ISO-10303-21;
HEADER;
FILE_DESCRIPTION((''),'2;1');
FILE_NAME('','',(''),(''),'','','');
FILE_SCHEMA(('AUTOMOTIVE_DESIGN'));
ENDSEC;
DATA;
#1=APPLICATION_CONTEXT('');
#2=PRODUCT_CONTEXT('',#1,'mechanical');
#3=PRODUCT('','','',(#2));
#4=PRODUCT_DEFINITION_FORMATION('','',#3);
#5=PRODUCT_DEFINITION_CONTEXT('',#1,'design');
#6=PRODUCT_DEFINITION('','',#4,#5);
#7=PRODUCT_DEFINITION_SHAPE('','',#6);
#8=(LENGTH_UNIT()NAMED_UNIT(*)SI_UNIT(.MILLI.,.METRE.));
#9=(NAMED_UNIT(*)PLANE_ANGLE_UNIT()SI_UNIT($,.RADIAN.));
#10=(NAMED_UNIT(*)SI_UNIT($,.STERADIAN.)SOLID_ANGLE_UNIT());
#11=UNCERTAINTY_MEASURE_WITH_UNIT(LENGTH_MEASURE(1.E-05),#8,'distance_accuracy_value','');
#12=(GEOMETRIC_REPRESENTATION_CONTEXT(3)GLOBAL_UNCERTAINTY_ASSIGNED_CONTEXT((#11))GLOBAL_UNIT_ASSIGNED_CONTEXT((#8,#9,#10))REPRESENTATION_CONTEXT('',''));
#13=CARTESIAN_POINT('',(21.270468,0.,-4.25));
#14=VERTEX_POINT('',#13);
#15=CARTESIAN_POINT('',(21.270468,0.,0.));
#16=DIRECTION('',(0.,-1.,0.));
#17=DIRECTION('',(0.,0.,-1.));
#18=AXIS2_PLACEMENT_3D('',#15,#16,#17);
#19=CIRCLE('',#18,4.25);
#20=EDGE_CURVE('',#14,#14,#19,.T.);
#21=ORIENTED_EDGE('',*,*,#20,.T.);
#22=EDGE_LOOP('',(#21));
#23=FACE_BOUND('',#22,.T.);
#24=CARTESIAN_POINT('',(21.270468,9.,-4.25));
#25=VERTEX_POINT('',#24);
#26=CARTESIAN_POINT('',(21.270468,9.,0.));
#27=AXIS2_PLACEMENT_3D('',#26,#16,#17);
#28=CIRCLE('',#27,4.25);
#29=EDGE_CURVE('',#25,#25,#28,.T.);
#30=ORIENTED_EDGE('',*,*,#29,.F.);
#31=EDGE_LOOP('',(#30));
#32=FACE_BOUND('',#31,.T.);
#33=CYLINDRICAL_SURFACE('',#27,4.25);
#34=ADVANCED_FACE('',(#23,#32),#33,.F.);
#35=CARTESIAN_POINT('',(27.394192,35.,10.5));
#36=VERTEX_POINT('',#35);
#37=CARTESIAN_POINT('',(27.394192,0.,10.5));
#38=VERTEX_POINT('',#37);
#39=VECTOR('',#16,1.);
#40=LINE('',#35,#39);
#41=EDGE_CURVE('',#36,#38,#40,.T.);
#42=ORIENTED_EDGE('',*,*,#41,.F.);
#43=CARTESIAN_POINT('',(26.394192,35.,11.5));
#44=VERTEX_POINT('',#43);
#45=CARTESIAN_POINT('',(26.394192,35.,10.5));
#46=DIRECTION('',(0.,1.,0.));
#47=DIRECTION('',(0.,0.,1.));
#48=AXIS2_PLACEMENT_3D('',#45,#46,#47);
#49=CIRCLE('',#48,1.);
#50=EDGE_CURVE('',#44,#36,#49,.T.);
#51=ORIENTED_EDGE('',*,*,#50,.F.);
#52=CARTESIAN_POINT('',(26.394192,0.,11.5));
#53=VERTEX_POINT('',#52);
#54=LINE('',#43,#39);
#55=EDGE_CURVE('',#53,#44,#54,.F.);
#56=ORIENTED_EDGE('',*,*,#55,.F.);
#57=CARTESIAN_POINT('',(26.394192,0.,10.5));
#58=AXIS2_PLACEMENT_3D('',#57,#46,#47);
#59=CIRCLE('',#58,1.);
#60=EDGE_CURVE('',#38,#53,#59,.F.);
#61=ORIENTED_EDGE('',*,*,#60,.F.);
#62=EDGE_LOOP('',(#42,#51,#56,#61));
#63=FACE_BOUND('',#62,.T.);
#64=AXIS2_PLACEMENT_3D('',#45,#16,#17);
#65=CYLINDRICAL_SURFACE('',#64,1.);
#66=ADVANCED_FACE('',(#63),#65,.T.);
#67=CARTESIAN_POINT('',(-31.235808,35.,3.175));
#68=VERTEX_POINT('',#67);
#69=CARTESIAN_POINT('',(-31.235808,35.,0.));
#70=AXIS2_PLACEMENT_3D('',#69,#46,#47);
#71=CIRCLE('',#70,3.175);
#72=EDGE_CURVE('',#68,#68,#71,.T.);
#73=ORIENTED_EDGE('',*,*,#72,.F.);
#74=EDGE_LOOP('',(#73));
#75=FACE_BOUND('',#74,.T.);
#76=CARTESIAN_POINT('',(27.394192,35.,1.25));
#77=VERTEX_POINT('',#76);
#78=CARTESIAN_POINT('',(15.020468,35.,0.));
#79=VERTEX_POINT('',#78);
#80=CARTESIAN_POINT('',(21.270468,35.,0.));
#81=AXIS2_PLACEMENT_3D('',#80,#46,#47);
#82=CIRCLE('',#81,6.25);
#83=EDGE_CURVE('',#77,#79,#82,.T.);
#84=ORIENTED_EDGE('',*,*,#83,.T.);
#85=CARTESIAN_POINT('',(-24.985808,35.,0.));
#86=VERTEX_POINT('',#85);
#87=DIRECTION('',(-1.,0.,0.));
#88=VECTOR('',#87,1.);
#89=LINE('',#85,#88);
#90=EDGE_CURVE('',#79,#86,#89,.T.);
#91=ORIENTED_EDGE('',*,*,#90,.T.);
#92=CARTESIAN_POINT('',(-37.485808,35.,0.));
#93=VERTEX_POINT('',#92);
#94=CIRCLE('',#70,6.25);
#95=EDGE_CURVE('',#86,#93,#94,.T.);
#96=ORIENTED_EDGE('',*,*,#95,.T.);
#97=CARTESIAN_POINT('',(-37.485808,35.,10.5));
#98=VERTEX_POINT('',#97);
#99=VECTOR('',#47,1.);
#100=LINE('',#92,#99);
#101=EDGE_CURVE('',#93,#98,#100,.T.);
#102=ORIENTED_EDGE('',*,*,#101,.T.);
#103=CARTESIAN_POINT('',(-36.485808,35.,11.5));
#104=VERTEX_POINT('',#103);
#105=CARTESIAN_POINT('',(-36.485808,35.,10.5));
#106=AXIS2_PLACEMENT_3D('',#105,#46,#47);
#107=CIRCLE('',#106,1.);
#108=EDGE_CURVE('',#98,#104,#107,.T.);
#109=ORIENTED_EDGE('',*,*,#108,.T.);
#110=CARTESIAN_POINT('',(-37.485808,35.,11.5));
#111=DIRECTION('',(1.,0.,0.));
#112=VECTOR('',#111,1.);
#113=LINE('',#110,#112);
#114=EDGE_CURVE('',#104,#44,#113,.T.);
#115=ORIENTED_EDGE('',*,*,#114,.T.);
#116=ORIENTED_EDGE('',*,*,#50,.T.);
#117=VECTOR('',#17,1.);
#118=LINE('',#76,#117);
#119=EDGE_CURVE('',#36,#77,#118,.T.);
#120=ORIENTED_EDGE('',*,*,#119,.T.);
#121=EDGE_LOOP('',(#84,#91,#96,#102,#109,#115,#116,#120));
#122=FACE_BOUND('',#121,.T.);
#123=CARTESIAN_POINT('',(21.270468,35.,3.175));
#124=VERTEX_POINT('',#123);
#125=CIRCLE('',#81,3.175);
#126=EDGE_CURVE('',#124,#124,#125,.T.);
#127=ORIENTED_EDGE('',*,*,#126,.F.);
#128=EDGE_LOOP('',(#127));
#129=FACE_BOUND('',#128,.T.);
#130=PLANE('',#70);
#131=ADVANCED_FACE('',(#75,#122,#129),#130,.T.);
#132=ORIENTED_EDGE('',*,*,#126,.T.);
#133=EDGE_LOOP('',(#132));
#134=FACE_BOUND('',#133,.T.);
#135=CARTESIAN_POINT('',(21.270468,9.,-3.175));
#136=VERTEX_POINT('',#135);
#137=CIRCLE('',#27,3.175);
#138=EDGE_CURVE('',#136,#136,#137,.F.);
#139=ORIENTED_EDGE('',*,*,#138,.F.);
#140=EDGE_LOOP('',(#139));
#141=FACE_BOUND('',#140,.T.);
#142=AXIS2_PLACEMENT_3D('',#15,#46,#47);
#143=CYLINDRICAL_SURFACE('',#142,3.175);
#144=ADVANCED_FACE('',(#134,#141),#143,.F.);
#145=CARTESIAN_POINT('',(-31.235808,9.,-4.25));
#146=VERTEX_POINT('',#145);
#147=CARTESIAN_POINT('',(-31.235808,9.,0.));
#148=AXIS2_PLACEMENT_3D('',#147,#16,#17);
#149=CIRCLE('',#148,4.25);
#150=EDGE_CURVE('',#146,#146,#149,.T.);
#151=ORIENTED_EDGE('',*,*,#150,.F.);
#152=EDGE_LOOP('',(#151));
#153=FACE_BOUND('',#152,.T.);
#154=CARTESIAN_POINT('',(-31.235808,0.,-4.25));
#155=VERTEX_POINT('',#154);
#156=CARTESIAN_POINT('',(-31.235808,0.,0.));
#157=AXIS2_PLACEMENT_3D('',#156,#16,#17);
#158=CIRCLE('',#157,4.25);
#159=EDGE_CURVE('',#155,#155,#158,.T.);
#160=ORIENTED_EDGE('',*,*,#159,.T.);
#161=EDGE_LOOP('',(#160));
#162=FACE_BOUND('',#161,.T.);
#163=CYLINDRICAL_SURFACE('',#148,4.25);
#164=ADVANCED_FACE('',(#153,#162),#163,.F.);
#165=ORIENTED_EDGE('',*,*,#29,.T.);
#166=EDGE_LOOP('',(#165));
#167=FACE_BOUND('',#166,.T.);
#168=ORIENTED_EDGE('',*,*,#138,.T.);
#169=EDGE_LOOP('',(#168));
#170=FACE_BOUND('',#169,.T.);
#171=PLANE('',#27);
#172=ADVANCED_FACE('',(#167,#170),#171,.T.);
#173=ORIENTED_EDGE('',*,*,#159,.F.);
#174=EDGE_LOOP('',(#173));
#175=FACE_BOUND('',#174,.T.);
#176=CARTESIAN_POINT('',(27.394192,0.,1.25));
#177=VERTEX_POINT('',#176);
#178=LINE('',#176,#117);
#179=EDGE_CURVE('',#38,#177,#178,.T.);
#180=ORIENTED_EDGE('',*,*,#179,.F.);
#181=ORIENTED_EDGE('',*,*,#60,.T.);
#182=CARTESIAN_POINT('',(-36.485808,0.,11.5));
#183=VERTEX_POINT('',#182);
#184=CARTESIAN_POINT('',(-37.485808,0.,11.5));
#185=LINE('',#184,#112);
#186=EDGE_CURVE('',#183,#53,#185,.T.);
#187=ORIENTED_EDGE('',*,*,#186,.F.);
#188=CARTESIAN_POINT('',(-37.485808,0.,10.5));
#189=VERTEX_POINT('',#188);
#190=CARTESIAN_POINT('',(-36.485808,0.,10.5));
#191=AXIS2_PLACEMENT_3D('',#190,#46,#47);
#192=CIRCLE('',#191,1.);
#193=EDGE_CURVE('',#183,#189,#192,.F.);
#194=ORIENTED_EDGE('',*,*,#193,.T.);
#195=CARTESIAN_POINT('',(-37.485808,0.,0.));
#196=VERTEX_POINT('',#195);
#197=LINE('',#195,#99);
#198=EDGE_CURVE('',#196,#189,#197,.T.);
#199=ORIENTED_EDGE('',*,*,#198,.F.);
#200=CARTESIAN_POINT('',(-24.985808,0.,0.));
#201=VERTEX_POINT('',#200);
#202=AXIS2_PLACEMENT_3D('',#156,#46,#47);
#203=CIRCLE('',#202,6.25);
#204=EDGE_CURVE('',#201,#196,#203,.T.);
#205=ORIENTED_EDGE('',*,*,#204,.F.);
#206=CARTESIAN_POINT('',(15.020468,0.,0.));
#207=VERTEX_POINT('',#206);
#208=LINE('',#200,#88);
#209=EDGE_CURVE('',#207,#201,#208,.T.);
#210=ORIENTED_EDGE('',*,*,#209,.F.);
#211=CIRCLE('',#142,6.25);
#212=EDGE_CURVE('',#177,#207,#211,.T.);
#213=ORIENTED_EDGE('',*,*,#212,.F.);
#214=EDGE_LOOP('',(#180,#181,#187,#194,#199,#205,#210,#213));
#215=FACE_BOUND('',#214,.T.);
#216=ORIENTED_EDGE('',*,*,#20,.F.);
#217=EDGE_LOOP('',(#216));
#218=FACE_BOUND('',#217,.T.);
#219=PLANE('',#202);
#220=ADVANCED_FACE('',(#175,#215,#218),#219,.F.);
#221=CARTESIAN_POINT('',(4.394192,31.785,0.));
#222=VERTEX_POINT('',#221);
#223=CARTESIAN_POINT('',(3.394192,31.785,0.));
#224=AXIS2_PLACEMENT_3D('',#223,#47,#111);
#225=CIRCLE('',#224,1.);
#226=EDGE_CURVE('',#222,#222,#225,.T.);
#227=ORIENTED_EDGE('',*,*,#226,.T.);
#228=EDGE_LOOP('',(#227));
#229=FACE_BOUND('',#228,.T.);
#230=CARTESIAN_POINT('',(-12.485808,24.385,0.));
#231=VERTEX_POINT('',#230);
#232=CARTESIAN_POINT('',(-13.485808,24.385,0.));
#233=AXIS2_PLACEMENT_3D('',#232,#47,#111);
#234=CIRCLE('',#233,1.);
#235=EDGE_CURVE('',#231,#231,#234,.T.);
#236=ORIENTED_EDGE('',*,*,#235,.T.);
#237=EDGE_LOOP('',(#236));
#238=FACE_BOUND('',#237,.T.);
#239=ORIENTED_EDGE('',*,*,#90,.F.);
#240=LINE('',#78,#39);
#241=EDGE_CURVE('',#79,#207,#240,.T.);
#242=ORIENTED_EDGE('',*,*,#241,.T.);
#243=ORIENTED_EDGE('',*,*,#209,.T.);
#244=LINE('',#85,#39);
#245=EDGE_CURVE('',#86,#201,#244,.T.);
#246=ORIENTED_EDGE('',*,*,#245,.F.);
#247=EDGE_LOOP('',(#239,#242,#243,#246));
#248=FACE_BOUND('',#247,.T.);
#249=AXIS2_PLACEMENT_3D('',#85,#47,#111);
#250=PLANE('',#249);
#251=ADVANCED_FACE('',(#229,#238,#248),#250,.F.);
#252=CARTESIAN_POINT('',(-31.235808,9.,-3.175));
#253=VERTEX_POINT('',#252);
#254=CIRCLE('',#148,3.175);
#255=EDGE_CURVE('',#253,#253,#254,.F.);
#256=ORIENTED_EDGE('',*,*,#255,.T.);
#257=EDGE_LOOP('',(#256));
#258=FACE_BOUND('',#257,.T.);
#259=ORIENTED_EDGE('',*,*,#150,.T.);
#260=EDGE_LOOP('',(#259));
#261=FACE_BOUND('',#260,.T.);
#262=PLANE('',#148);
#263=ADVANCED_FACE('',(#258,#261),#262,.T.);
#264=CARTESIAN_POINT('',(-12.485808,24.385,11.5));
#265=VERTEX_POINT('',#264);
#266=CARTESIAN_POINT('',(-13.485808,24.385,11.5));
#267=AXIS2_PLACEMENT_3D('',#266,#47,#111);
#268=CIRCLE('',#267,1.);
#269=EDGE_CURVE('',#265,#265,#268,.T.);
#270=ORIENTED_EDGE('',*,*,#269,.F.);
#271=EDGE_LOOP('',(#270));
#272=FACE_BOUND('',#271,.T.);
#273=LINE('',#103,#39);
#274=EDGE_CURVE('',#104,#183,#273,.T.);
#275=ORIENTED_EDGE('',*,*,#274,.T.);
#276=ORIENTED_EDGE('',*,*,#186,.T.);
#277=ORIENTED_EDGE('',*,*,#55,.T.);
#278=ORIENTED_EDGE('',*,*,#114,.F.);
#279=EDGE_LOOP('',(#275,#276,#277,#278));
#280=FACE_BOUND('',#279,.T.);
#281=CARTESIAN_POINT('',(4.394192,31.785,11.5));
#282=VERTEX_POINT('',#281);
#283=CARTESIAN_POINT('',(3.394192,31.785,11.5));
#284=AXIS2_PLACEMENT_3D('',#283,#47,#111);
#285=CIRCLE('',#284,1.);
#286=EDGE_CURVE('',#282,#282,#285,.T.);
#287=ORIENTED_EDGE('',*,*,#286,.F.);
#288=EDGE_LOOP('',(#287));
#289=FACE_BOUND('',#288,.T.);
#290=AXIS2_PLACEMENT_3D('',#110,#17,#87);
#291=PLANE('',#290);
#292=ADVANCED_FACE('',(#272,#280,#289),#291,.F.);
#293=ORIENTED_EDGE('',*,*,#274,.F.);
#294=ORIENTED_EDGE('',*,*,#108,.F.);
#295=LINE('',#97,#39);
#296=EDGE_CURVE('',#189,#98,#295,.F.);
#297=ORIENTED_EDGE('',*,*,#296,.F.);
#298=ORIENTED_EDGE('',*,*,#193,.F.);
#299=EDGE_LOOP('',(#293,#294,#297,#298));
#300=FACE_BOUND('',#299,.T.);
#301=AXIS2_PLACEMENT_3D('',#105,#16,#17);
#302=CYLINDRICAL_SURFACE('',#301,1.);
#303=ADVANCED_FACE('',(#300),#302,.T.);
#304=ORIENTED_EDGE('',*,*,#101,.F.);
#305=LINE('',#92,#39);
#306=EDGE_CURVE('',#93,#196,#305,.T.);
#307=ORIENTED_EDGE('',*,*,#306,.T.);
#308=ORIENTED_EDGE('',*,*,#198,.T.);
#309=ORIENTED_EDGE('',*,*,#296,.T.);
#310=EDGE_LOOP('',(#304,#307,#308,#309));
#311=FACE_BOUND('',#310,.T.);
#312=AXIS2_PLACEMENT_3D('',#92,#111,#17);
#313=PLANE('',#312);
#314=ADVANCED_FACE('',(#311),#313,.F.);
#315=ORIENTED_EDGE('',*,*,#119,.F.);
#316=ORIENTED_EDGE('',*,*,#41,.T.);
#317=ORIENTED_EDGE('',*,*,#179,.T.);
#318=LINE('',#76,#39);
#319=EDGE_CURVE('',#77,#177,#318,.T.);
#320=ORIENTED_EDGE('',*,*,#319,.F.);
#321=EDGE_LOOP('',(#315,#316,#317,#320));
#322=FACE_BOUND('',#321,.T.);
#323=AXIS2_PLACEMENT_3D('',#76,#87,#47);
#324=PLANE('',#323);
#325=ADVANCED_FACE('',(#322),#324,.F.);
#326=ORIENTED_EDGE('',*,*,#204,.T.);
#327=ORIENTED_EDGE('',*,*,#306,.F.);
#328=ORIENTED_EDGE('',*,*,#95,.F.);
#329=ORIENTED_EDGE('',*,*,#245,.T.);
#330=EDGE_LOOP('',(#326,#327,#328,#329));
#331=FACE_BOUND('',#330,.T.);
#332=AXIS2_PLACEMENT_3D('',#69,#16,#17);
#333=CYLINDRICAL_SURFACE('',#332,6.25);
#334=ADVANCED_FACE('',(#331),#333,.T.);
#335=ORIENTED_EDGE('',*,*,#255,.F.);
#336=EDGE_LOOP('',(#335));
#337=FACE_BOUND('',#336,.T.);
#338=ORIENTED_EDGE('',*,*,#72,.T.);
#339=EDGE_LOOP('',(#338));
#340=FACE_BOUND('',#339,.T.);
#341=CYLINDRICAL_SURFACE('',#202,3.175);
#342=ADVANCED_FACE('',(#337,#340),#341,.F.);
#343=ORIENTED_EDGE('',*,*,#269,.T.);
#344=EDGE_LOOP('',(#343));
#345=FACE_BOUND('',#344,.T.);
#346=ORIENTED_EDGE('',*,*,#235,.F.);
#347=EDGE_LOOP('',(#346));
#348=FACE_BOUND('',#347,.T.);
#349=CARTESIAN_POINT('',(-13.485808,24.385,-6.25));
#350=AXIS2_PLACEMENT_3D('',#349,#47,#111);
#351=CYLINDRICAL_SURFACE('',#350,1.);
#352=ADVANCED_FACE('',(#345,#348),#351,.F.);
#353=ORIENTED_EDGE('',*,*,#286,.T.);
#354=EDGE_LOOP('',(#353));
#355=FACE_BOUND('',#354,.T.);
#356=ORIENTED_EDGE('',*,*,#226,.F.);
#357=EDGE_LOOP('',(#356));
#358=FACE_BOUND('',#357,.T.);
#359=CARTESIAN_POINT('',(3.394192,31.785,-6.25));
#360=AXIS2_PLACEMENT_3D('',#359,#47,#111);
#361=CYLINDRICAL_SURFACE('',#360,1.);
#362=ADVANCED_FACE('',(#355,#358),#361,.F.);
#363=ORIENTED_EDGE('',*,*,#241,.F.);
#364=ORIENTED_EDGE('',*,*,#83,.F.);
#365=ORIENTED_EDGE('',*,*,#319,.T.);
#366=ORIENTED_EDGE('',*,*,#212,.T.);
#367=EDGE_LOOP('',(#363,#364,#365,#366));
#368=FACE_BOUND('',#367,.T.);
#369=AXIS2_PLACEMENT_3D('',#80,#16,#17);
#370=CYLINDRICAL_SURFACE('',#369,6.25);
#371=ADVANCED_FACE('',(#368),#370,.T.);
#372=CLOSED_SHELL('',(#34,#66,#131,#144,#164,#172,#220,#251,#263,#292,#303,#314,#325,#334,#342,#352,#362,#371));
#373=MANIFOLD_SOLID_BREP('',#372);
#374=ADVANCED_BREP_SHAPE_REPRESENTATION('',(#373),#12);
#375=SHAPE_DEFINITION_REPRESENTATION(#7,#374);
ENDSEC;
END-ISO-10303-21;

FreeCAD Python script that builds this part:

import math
import FreeCAD as App
import Part
import Sketcher

V = App.Vector
Q = App.Units.Quantity


def edges_at(feature, points):
    """Names of the edges that pass closest to the given points."""
    edges = feature.Shape.Edges
    near = lambda p: min(range(len(edges)), key=lambda i: edges[i].distToShape(Part.Vertex(*p))[0])
    return sorted({f"Edge{near(p) + 1}" for p in points})

doc = App.newDocument("Part")
body = doc.addObject("PartDesign::Body", "Body")

sketch1 = body.newObject("Sketcher::SketchObject", "Sketch")
sketch1.AttachmentSupport = (doc.getObject("XZ_Plane"), [""])
sketch1.MapMode = "FlatFace"
sketch1.addGeometry(Part.LineSegment(V(15.020468, 0, 0), V(-24.985808, 0, 0)), False)
sketch1.addGeometry(Part.ArcOfCircle(Part.Circle(V(-31.235808, 0, 0), V(0, 0, 1), 6.25), math.radians(180), math.radians(360)), False)
sketch1.addGeometry(Part.LineSegment(V(-37.485808, 0, 0), V(-37.485808, 11.5, 0)), False)
sketch1.addGeometry(Part.LineSegment(V(-37.485808, 11.5, 0), V(27.394192, 11.5, 0)), False)
sketch1.addGeometry(Part.LineSegment(V(27.394192, 11.5, 0), V(27.394192, 1.25, 0)), False)
sketch1.addGeometry(Part.ArcOfCircle(Part.Circle(V(21.270468, 0, 0), V(0, 0, 1), 6.25), math.radians(180), math.radians(371.536959)), False)
sketch1.addConstraint(Sketcher.Constraint("Coincident", 0, 2, 1, 2))
sketch1.addConstraint(Sketcher.Constraint("Tangent", 1, 1, 2, 1))
sketch1.addConstraint(Sketcher.Constraint("Coincident", 2, 2, 3, 1))
sketch1.addConstraint(Sketcher.Constraint("Coincident", 3, 2, 4, 1))
sketch1.addConstraint(Sketcher.Constraint("Coincident", 4, 2, 5, 2))
sketch1.addConstraint(Sketcher.Constraint("Coincident", 5, 1, 0, 1))
sketch1.addConstraint(Sketcher.Constraint("Horizontal", 0))
sketch1.addConstraint(Sketcher.Constraint("Vertical", 2))
sketch1.addConstraint(Sketcher.Constraint("Horizontal", 3))
sketch1.addConstraint(Sketcher.Constraint("Vertical", 4))
sketch1.addConstraint(Sketcher.Constraint("Equal", 1, 5))
sketch1.addConstraint(Sketcher.Constraint("PointOnObject", 1, 3, -1))
sketch1.addConstraint(Sketcher.Constraint("PointOnObject", 5, 3, -1))
sketch1.addConstraint(Sketcher.Constraint("PointOnObject", 0, 2, -1))
sketch1.addConstraint(Sketcher.Constraint("Radius", 1, Q("6.25 mm")))
sketch1.addConstraint(Sketcher.Constraint("DistanceY", 2, 1, 2, 2, Q("11.5 mm")))
sketch1.addConstraint(Sketcher.Constraint("DistanceX", 3, 1, 3, 2, Q("64.88 mm")))
sketch1.addConstraint(Sketcher.Constraint("DistanceY", 4, 2, 4, 1, Q("10.25 mm")))
sketch1.addConstraint(Sketcher.Constraint("DistanceX", -1, 1, 5, 3, Q("21.270468 mm")))
pad1 = body.newObject("PartDesign::Pad", "Pad")
pad1.Profile = sketch1
pad1.Length = 35
pad1.Reversed = True

sketch2 = body.newObject("Sketcher::SketchObject", "Sketch001")
sketch2.AttachmentSupport = (doc.getObject("XZ_Plane"), [""])
sketch2.MapMode = "FlatFace"
sketch2.AttachmentOffset = App.Placement(V(0, 0, -35), App.Rotation())
sketch2.addGeometry(Part.Circle(V(-31.235808, 0, 0), V(0, 0, 1), 3.175), False)
sketch2.addGeometry(Part.Circle(V(21.270468, 0, 0), V(0, 0, 1), 3.175), False)
sketch2.addConstraint(Sketcher.Constraint("Equal", 0, 1))
sketch2.addConstraint(Sketcher.Constraint("PointOnObject", 0, 3, -1))
sketch2.addConstraint(Sketcher.Constraint("PointOnObject", 1, 3, -1))
sketch2.addConstraint(Sketcher.Constraint("Diameter", 0, Q("6.35 mm")))
sketch2.addConstraint(Sketcher.Constraint("DistanceX", -1, 1, 1, 3, Q("21.270468 mm")))
sketch2.addConstraint(Sketcher.Constraint("DistanceX", 0, 3, -1, 1, Q("31.235808 mm")))
pocket1 = body.newObject("PartDesign::Pocket", "Pocket")
pocket1.Profile = sketch2
pocket1.Type = "ThroughAll"
pocket1.Reversed = True

sketch3 = body.newObject("Sketcher::SketchObject", "Sketch002")
sketch3.AttachmentSupport = (doc.getObject("XZ_Plane"), [""])
sketch3.MapMode = "FlatFace"
sketch3.addGeometry(Part.Circle(V(21.270468, 0, 0), V(0, 0, 1), 4.25), False)
sketch3.addGeometry(Part.Circle(V(-31.235808, 0, 0), V(0, 0, 1), 4.25), False)
sketch3.addConstraint(Sketcher.Constraint("Equal", 0, 1))
sketch3.addConstraint(Sketcher.Constraint("PointOnObject", 0, 3, -1))
sketch3.addConstraint(Sketcher.Constraint("PointOnObject", 1, 3, -1))
sketch3.addConstraint(Sketcher.Constraint("Diameter", 0, Q("8.5 mm")))
sketch3.addConstraint(Sketcher.Constraint("DistanceX", -1, 1, 0, 3, Q("21.270468 mm")))
sketch3.addConstraint(Sketcher.Constraint("DistanceX", 1, 3, -1, 1, Q("31.235808 mm")))
pocket2 = body.newObject("PartDesign::Pocket", "Pocket001")
pocket2.Profile = sketch3
pocket2.Length = 9

sketch4 = body.newObject("Sketcher::SketchObject", "Sketch003")
sketch4.AttachmentSupport = (doc.getObject("XY_Plane"), [""])
sketch4.MapMode = "FlatFace"
sketch4.AttachmentOffset = App.Placement(V(0, 0, 11.5), App.Rotation())
sketch4.addGeometry(Part.Circle(V(-13.485808, 24.385, 0), V(0, 0, 1), 1), False)
sketch4.addGeometry(Part.Circle(V(3.394192, 31.785, 0), V(0, 0, 1), 1), False)
sketch4.addConstraint(Sketcher.Constraint("Equal", 0, 1))
sketch4.addConstraint(Sketcher.Constraint("Diameter", 0, Q("2 mm")))
sketch4.addConstraint(Sketcher.Constraint("DistanceY", 0, 3, 1, 3, Q("7.4 mm")))
sketch4.addConstraint(Sketcher.Constraint("DistanceX", 0, 3, 1, 3, Q("16.88 mm")))
sketch4.addConstraint(Sketcher.Constraint("DistanceY", -1, 1, 0, 3, Q("24.385 mm")))
sketch4.addConstraint(Sketcher.Constraint("DistanceX", 0, 3, -1, 1, Q("13.485808 mm")))
pocket3 = body.newObject("PartDesign::Pocket", "Pocket002")
pocket3.Profile = sketch4
pocket3.Type = "ThroughAll"
doc.recompute()

fillet = body.newObject("PartDesign::Fillet", "Fillet")
fillet.Base = (pocket3, edges_at(pocket3, [(27.394, 17.5, 11.5), (-37.486, 17.5, 11.5)]))
fillet.Radius = 1

doc.recompute()
